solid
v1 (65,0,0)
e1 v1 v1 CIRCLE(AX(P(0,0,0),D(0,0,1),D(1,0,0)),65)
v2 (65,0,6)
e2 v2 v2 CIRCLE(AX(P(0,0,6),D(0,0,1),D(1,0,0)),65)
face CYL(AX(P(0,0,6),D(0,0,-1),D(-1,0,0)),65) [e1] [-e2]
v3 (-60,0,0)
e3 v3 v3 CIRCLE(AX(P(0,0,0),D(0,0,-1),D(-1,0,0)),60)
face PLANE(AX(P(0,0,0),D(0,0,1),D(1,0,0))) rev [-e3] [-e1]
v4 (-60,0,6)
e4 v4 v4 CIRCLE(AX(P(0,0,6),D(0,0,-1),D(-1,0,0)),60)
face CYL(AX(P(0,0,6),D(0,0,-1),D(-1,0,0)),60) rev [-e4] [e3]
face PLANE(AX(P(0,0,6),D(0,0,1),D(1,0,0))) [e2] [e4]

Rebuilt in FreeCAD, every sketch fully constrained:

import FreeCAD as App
import Part
import Sketcher
from FreeCAD import Vector
Q = App.Units.Quantity

doc = App.newDocument("Part")
params = doc.addObject("Spreadsheet::Sheet", "Params")
for row, (alias, value) in enumerate([
    ("sketch1_diameter", "130 mm"),
    ("pad1_length", "6 mm"),
    ("sketch2_diameter", "120 mm"),
], start=1):
    params.set(f"A{row}", alias)
    params.set(f"B{row}", "=" + value)
    params.setAlias(f"B{row}", alias)

body = doc.addObject("PartDesign::Body", "Body")

sketch1 = body.newObject("Sketcher::SketchObject", "Sketch")
sketch1.AttachmentSupport = (doc.getObject("XY_Plane"), [""])
sketch1.MapMode = "FlatFace"
sketch1.addGeometry(Part.Circle(Vector(0, 0, 0), Vector(0, 0, 1), 65), False)
sketch1.addConstraint([
    Sketcher.Constraint("Coincident", 0, 3, -1, 1),
    Sketcher.Constraint("Diameter", 0, Q("130 mm")),
])
sketch1.setExpression("Constraints[1]", "Params.sketch1_diameter")
pad1 = body.newObject("PartDesign::Pad", "Pad")
pad1.Profile = sketch1
pad1.setExpression("Length", "Params.pad1_length")

sketch2 = body.newObject("Sketcher::SketchObject", "Sketch001")
sketch2.AttachmentSupport = (doc.getObject("XY_Plane"), [""])
sketch2.MapMode = "FlatFace"
sketch2.addGeometry(Part.Circle(Vector(0, 0, 0), Vector(0, 0, 1), 60), False)
sketch2.addConstraint([
    Sketcher.Constraint("Coincident", 0, 3, -1, 1),
    Sketcher.Constraint("Diameter", 0, Q("120 mm")),
])
sketch2.setExpression("Constraints[1]", "Params.sketch2_diameter")
pocket1 = body.newObject("PartDesign::Pocket", "Pocket")
pocket1.Profile = sketch2
pocket1.Type = "ThroughAll"
pocket1.Reversed = True

doc.recompute()
